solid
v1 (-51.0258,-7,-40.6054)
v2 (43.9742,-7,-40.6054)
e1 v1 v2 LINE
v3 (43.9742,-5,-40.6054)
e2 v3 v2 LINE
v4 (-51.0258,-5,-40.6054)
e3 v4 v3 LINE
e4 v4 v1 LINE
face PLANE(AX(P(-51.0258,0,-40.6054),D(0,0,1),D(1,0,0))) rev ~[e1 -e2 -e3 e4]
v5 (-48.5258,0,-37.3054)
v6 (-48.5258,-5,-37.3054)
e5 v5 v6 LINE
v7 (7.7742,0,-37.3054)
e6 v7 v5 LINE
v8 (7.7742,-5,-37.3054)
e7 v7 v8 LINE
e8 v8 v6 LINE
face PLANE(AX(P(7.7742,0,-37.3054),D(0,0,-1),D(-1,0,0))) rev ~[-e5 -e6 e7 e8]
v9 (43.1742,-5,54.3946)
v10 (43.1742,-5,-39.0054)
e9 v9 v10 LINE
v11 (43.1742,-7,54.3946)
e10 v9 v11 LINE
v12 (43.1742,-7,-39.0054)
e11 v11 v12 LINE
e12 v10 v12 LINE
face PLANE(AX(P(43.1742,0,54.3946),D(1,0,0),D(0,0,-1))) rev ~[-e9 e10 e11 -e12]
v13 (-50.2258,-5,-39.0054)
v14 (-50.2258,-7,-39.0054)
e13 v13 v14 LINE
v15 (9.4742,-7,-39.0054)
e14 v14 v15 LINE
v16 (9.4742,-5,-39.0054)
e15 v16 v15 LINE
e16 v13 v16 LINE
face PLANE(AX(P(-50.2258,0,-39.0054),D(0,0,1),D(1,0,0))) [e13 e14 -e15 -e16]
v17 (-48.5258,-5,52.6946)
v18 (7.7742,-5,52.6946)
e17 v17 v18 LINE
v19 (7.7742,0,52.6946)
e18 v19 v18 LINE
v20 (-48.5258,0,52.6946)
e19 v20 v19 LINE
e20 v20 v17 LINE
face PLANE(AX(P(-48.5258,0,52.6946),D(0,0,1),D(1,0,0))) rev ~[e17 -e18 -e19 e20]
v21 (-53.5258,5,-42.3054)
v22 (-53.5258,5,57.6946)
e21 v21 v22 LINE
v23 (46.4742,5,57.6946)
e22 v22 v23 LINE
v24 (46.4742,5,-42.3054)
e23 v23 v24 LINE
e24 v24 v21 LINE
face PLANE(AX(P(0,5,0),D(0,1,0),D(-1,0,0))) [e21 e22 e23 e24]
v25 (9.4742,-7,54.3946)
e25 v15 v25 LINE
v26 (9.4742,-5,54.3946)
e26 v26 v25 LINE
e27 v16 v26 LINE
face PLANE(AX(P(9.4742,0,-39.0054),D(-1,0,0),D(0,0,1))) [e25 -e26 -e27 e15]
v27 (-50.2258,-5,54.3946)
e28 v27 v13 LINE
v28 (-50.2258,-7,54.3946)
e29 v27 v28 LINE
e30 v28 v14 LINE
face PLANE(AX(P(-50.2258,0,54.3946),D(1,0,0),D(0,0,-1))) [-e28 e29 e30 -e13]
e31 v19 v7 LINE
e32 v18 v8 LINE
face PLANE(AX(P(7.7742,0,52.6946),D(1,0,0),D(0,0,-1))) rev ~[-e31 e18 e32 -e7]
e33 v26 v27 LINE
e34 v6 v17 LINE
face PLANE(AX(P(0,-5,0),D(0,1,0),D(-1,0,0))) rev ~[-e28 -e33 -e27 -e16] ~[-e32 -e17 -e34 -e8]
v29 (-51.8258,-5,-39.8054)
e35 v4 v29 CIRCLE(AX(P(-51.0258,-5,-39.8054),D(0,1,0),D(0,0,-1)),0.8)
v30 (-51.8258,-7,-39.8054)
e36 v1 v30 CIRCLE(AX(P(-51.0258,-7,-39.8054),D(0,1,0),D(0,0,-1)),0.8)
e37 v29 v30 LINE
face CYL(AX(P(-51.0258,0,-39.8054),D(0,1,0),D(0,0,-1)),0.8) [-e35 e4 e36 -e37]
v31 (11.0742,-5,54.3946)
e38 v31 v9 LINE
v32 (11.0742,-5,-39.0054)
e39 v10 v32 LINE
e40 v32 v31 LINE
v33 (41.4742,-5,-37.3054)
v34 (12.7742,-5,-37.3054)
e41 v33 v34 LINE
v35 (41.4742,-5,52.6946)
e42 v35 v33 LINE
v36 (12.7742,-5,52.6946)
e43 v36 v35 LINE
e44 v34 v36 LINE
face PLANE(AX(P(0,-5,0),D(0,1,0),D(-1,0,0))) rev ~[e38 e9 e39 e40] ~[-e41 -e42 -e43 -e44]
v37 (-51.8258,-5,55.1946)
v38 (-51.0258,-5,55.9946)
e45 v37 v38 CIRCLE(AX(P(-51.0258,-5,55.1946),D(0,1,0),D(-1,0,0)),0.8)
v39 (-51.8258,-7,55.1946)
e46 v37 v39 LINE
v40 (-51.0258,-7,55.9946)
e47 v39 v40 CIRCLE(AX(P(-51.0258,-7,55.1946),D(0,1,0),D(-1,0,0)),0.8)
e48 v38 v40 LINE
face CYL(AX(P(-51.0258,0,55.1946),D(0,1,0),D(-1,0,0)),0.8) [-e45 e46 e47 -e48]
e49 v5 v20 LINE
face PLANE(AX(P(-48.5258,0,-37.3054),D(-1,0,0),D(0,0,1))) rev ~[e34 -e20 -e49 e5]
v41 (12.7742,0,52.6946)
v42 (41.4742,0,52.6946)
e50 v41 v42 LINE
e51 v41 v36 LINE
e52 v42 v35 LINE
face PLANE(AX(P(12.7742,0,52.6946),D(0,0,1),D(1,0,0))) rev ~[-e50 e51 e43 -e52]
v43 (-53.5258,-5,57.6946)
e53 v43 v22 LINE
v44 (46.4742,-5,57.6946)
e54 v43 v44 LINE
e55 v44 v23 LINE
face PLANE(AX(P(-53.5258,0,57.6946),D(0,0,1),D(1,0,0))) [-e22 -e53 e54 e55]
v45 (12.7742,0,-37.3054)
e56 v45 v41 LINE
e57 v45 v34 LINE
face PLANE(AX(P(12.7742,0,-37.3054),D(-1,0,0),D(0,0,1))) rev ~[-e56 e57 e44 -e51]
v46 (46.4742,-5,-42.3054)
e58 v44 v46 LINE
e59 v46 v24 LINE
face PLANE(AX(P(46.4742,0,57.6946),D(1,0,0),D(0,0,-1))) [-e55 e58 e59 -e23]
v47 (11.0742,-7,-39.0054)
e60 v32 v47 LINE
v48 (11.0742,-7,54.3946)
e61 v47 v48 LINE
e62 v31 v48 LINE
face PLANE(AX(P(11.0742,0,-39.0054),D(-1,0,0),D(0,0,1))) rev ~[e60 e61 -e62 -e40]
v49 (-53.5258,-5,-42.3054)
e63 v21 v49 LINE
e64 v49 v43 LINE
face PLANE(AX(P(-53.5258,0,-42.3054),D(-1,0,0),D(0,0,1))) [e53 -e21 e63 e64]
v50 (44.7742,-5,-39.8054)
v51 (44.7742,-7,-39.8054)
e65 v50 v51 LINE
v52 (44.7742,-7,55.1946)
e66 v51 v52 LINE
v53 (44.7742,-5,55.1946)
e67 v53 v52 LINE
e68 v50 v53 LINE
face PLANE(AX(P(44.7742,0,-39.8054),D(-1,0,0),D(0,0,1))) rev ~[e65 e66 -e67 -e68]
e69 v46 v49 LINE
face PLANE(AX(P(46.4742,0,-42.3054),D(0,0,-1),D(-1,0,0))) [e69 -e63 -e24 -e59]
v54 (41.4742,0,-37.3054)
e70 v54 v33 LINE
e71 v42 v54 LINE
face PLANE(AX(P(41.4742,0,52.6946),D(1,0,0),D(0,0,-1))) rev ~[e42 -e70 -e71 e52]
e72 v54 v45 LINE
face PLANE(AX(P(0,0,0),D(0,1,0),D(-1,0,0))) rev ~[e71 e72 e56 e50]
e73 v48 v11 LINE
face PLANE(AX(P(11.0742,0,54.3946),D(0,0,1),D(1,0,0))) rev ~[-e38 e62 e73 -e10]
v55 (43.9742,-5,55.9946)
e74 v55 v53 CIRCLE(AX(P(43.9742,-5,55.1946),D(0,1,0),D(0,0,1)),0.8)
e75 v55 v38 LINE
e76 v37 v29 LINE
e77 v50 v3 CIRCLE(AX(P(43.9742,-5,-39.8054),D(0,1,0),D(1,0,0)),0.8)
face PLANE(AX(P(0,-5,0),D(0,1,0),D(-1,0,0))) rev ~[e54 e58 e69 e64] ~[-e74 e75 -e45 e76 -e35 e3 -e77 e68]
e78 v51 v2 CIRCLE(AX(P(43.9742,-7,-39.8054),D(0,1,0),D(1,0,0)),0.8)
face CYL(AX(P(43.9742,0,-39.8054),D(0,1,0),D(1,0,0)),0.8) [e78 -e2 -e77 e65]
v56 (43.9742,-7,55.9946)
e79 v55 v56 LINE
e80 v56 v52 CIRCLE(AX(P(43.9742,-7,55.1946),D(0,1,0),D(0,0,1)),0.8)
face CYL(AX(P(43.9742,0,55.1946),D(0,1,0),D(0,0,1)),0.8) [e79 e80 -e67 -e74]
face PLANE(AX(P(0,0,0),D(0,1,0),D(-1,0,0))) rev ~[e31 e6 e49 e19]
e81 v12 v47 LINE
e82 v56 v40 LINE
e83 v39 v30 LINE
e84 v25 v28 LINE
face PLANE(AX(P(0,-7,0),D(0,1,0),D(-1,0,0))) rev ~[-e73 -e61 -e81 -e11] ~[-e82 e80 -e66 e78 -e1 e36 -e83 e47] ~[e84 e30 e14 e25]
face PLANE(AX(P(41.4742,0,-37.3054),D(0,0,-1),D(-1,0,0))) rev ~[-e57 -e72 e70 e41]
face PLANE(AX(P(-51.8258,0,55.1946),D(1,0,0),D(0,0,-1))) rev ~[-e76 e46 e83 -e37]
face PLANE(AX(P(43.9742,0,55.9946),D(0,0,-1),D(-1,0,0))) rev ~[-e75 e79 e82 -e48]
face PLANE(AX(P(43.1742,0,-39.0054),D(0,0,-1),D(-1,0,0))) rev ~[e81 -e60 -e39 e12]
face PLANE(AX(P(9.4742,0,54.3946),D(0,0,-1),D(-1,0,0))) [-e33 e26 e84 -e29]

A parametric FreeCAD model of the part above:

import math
import FreeCAD as App
import Part
import Sketcher

V = App.Vector


def add_polygon(sketch, points):
    """Adds a closed chain of lines whose ends are joined by coincident constraints."""
    first, n = sketch.GeometryCount, len(points)
    for a, b in zip(points, points[1:] + points[:1]):
        sketch.addGeometry(Part.LineSegment(App.Vector(*a, 0), App.Vector(*b, 0)), False)
    for i in range(n):
        sketch.addConstraint(Sketcher.Constraint("Coincident", first + i, 2, first + (i + 1) % n, 1))

doc = App.newDocument("Part")
body = doc.addObject("PartDesign::Body", "Body")

sketch1 = body.newObject("Sketcher::SketchObject", "Sketch")
sketch1.AttachmentSupport = (doc.getObject("XZ_Plane"), [""])
sketch1.MapMode = "FlatFace"
add_polygon(sketch1, [(-53.5258, -42.3054), (-53.5258, 57.6946), (46.4742, 57.6946), (46.4742, -42.3054)])
sketch1.addConstraint([
    Sketcher.Constraint("Vertical", 0),
    Sketcher.Constraint("Horizontal", 1),
    Sketcher.Constraint("Vertical", 2),
    Sketcher.Constraint("Horizontal", 3),
    Sketcher.Constraint("Equal", 3, 0),
    Sketcher.Constraint("DistanceX", 1, 1, 1, 2, 100.0),
    Sketcher.Constraint("DistanceX", 0, 2, -1, 1, 53.5258),
    Sketcher.Constraint("DistanceY", -1, 1, 0, 2, 57.6946),
])
pad1 = body.newObject("PartDesign::Pad", "Pad")
pad1.Profile = sketch1
pad1.Length = 5
pad1.Reversed = True

sketch2 = body.newObject("Sketcher::SketchObject", "Sketch001")
sketch2.AttachmentSupport = (doc.getObject("XZ_Plane"), [""])
sketch2.MapMode = "FlatFace"
add_polygon(sketch2, [(-53.5258, -42.3054), (-53.5258, 57.6946), (46.4742, 57.6946), (46.4742, -42.3054)])
add_polygon(sketch2, [(12.7742, -37.3054), (41.4742, -37.3054), (41.4742, 52.6946), (12.7742, 52.6946)])
add_polygon(sketch2, [(-48.5258, -37.3054), (7.7742, -37.3054), (7.7742, 52.6946), (-48.5258, 52.6946)])
sketch2.addConstraint([
    Sketcher.Constraint("Vertical", 0),
    Sketcher.Constraint("Horizontal", 1),
    Sketcher.Constraint("Vertical", 2),
    Sketcher.Constraint("Horizontal", 3),
    Sketcher.Constraint("Horizontal", 4),
    Sketcher.Constraint("Vertical", 5),
    Sketcher.Constraint("Horizontal", 6),
    Sketcher.Constraint("Vertical", 7),
    Sketcher.Constraint("Horizontal", 8),
    Sketcher.Constraint("Vertical", 9),
    Sketcher.Constraint("Horizontal", 10),
    Sketcher.Constraint("Vertical", 11),
    Sketcher.Constraint("Horizontal", 7, 2, 8, 2),
    Sketcher.Constraint("Horizontal", 6, 2, 9, 2),
    Sketcher.Constraint("Equal", 3, 0),
    Sketcher.Constraint("DistanceX", 4, 2, 2, 2, 5.0),
    Sketcher.Constraint("DistanceY", 2, 2, 4, 2, 5.0),
    Sketcher.Constraint("DistanceY", 5, 2, 1, 2, 5.0),
    Sketcher.Constraint("DistanceX", 8, 2, 7, 2, 5.0),
    Sketcher.Constraint("DistanceX", 0, 2, 10, 2, 5.0),
    Sketcher.Constraint("DistanceX", 1, 1, 1, 2, 100.0),
    Sketcher.Constraint("DistanceX", 4, 1, 4, 2, 28.7),
    Sketcher.Constraint("DistanceX", 0, 2, -1, 1, 53.5258),
    Sketcher.Constraint("DistanceY", -1, 1, 0, 2, 57.6946),
])
pad2 = body.newObject("PartDesign::Pad", "Pad001")
pad2.Profile = sketch2
pad2.Length = 5

sketch3 = body.newObject("Sketcher::SketchObject", "Sketch002")
sketch3.AttachmentSupport = (doc.getObject("XZ_Plane"), [""])
sketch3.MapMode = "FlatFace"
sketch3.addGeometry(Part.LineSegment(V(43.9742, -40.6054, 0), V(-51.0258, -40.6054, 0)), False)
sketch3.addGeometry(Part.ArcOfCircle(Part.Circle(V(-51.0258, -39.8054, 0), V(0, 0, 1), 0.8), math.radians(180), math.radians(270)), False)
sketch3.addGeometry(Part.LineSegment(V(-51.8258, -39.8054, 0), V(-51.8258, 55.1946, 0)), False)
sketch3.addGeometry(Part.ArcOfCircle(Part.Circle(V(-51.0258, 55.1946, 0), V(0, 0, 1), 0.8), math.radians(90), math.radians(180)), False)
sketch3.addGeometry(Part.LineSegment(V(-51.0258, 55.9946, 0), V(43.9742, 55.9946, 0)), False)
sketch3.addGeometry(Part.ArcOfCircle(Part.Circle(V(43.9742, 55.1946, 0), V(0, 0, 1), 0.8), math.radians(0), math.radians(90)), False)
sketch3.addGeometry(Part.LineSegment(V(44.7742, 55.1946, 0), V(44.7742, -39.8054, 0)), False)
sketch3.addGeometry(Part.ArcOfCircle(Part.Circle(V(43.9742, -39.8054, 0), V(0, 0, 1), 0.8), math.radians(-90), math.radians(0)), False)
add_polygon(sketch3, [(11.0742, -39.0054), (43.1742, -39.0054), (43.1742, 54.3946), (11.0742, 54.3946)])
add_polygon(sketch3, [(9.4742, 54.3946), (-50.2258, 54.3946), (-50.2258, -39.0054), (9.4742, -39.0054)])
sketch3.addConstraint([
    Sketcher.Constraint("Tangent", 0, 2, 1, 2),
    Sketcher.Constraint("Tangent", 1, 1, 2, 1),
    Sketcher.Constraint("Tangent", 2, 2, 3, 2),
    Sketcher.Constraint("Tangent", 3, 1, 4, 1),
    Sketcher.Constraint("Tangent", 4, 2, 5, 2),
    Sketcher.Constraint("Tangent", 5, 1, 6, 1),
    Sketcher.Constraint("Tangent", 6, 2, 7, 2),
    Sketcher.Constraint("Tangent", 7, 1, 0, 1),
    Sketcher.Constraint("Horizontal", 0),
    Sketcher.Constraint("Vertical", 2),
    Sketcher.Constraint("Horizontal", 4),
    Sketcher.Constraint("Vertical", 6),
    Sketcher.Constraint("Horizontal", 8),
    Sketcher.Constraint("Vertical", 9),
    Sketcher.Constraint("Horizontal", 10),
    Sketcher.Constraint("Vertical", 11),
    Sketcher.Constraint("Horizontal", 12),
    Sketcher.Constraint("Vertical", 13),
    Sketcher.Constraint("Horizontal", 14),
    Sketcher.Constraint("Vertical", 15),
    Sketcher.Constraint("Equal", 1, 3),
    Sketcher.Constraint("Equal", 3, 5),
    Sketcher.Constraint("Equal", 5, 7),
    Sketcher.Constraint("Horizontal", 10, 2, 12, 2),
    Sketcher.Constraint("Horizontal", 11, 2, 13, 2),
    Sketcher.Constraint("Equal", 4, 2),
    Sketcher.Constraint("Radius", 1, 0.8),
    Sketcher.Constraint("DistanceX", 0, 2, 0, 1, 95.0),
    Sketcher.Constraint("DistanceX", 8, 1, 8, 2, 32.1),
    Sketcher.Constraint("DistanceX", 12, 2, 12, 1, 59.7),
    Sketcher.Constraint("DistanceY", 9, 1, 9, 2, 93.4),
    Sketcher.Constraint("DistanceX", 8, 2, 7, 3, 0.8),
    Sketcher.Constraint("DistanceY", 7, 3, 8, 2, 0.8),
    Sketcher.Constraint("DistanceX", 3, 3, 12, 2, 0.8),
    Sketcher.Constraint("DistanceX", 1, 3, -1, 1, 51.0258),
    Sketcher.Constraint("DistanceY", 1, 3, -1, 1, 39.8054),
])
pad3 = body.newObject("PartDesign::Pad", "Pad002")
pad3.Profile = sketch3
pad3.Length = 7

doc.recompute()
